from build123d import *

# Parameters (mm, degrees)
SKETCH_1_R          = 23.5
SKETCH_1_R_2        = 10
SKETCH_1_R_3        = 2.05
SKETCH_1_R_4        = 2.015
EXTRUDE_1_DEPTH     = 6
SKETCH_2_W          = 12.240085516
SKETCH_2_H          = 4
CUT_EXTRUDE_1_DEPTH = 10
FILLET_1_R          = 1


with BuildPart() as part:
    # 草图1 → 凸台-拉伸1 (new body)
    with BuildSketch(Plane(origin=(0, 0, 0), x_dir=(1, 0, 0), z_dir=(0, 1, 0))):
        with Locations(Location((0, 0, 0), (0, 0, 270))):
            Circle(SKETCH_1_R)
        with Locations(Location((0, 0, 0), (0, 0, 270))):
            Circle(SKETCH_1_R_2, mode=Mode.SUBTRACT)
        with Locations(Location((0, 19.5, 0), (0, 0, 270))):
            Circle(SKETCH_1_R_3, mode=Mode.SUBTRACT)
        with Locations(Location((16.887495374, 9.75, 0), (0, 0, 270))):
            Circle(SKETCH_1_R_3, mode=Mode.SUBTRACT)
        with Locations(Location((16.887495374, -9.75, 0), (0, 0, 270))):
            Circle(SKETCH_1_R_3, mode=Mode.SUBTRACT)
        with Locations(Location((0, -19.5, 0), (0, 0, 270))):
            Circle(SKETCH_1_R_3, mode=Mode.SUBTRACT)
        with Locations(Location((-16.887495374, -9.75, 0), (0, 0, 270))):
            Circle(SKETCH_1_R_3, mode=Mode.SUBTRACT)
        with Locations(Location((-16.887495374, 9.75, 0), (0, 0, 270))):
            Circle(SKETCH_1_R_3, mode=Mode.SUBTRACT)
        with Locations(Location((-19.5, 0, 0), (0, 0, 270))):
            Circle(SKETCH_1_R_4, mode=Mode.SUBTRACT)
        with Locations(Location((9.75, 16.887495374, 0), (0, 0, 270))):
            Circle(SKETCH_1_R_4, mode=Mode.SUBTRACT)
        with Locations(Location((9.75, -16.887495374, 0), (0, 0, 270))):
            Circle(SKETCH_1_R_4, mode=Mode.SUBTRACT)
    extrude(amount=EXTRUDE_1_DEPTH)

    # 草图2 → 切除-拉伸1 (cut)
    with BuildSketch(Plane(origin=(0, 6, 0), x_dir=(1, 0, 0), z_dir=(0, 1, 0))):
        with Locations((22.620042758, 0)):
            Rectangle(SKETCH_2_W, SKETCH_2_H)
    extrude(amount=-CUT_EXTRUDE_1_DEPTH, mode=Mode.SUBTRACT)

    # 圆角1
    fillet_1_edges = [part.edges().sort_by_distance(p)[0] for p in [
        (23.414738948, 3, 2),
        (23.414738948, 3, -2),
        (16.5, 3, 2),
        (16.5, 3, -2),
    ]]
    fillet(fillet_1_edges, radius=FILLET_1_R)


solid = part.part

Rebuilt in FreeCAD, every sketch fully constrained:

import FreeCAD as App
import Part
import Sketcher
Q = App.Units.Quantity


def edges_at(feature, points):
    """Names of the edges that pass closest to the given points."""
    edges = feature.Shape.Edges
    near = lambda p: min(range(len(edges)), key=lambda i: edges[i].distToShape(Part.Vertex(*p))[0])
    return sorted({f"Edge{near(p) + 1}" for p in points})


def add_polygon(sketch, points):
    """Adds a closed chain of lines whose ends are joined by coincident constraints."""
    first, n = sketch.GeometryCount, len(points)
    for a, b in zip(points, points[1:] + points[:1]):
        sketch.addGeometry(Part.LineSegment(App.Vector(*a, 0), App.Vector(*b, 0)), False)
    for i in range(n):
        sketch.addConstraint(Sketcher.Constraint("Coincident", first + i, 2, first + (i + 1) % n, 1))

doc = App.newDocument("Part")
body = doc.addObject("PartDesign::Body", "Body")

# Sketch on XZ plane
sketch1 = body.newObject("Sketcher::SketchObject", "Sketch")
sketch1.AttachmentSupport = (doc.getObject("XZ_Plane"), [""])
sketch1.MapMode = "FlatFace"
sketch1.addGeometry(Part.Circle(App.Vector(0, 0, 0), App.Vector(0, 0, 1), 23.5), False)
sketch1.addGeometry(Part.Circle(App.Vector(-16.9, -9.8, 0), App.Vector(0, 0, 1), 2), False)
sketch1.addGeometry(Part.Circle(App.Vector(-19.5, 0, 0), App.Vector(0, 0, 1), 2), False)
sketch1.addGeometry(Part.Circle(App.Vector(-16.9, 9.8, 0), App.Vector(0, 0, 1), 2), False)
sketch1.addGeometry(Part.Circle(App.Vector(0, -19.5, 0), App.Vector(0, 0, 1), 2), False)
sketch1.addGeometry(Part.Circle(App.Vector(9.8, -16.9, 0), App.Vector(0, 0, 1), 2), False)
sketch1.addGeometry(Part.Circle(App.Vector(16.9, -9.8, 0), App.Vector(0, 0, 1), 2), False)
sketch1.addGeometry(Part.Circle(App.Vector(0, 0, 0), App.Vector(0, 0, 1), 10), False)
sketch1.addGeometry(Part.Circle(App.Vector(0, 19.5, 0), App.Vector(0, 0, 1), 2), False)
sketch1.addGeometry(Part.Circle(App.Vector(16.9, 9.8, 0), App.Vector(0, 0, 1), 2), False)
sketch1.addGeometry(Part.Circle(App.Vector(9.8, 16.9, 0), App.Vector(0, 0, 1), 2), False)
sketch1.addConstraint(Sketcher.Constraint("Coincident", 0, 3, -1, 1))
sketch1.addConstraint(Sketcher.Constraint("Coincident", 7, 3, -1, 1))
sketch1.addConstraint(Sketcher.Constraint("Equal", 1, 3))
sketch1.addConstraint(Sketcher.Constraint("Equal", 3, 4))
sketch1.addConstraint(Sketcher.Constraint("Equal", 2, 5))
sketch1.addConstraint(Sketcher.Constraint("Equal", 4, 6))
sketch1.addConstraint(Sketcher.Constraint("Equal", 6, 8))
sketch1.addConstraint(Sketcher.Constraint("Equal", 8, 9))
sketch1.addConstraint(Sketcher.Constraint("Equal", 5, 10))
sketch1.addConstraint(Sketcher.Constraint("Symmetric", 3, 3, 6, 3, -1, 1))
sketch1.addConstraint(Sketcher.Constraint("Symmetric", 4, 3, 8, 3, -1, 1))
sketch1.addConstraint(Sketcher.Constraint("Symmetric", 1, 3, 9, 3, -1, 1))
sketch1.addConstraint(Sketcher.Constraint("Symmetric", 1, 3, 6, 3, -2))
sketch1.addConstraint(Sketcher.Constraint("Symmetric", 5, 3, 10, 3, -1))
sketch1.addConstraint(Sketcher.Constraint("PointOnObject", 2, 3, -1))
sketch1.addConstraint(Sketcher.Constraint("PointOnObject", 4, 3, -2))
sketch1.addConstraint(Sketcher.Constraint("Diameter", 0, Q("47 mm")))
sketch1.addConstraint(Sketcher.Constraint("Diameter", 7, Q("20 mm")))
sketch1.addConstraint(Sketcher.Constraint("Diameter", 1, Q("4.1 mm")))
sketch1.addConstraint(Sketcher.Constraint("Diameter", 2, Q("4.03 mm")))
sketch1.addConstraint(Sketcher.Constraint("DistanceX", 2, 3, -1, 1, Q("19.5 mm")))
sketch1.addConstraint(Sketcher.Constraint("DistanceY", 4, 3, -1, 1, Q("19.5 mm")))
sketch1.addConstraint(Sketcher.Constraint("DistanceY", 1, 3, 3, 3, Q("19.5 mm")))
sketch1.addConstraint(Sketcher.Constraint("DistanceX", -1, 1, 5, 3, Q("9.75 mm")))
sketch1.addConstraint(Sketcher.Constraint("DistanceX", 1, 3, 6, 3, Q("33.774991 mm")))
sketch1.addConstraint(Sketcher.Constraint("DistanceY", 5, 3, -1, 1, Q("16.887495 mm")))
pad1 = body.newObject("PartDesign::Pad", "Pad")
pad1.Profile = sketch1
pad1.Length = 6
pad1.Reversed = True

# Sketch on XZ plane
sketch2 = body.newObject("Sketcher::SketchObject", "Sketch001")
sketch2.AttachmentSupport = (doc.getObject("XZ_Plane"), [""])
sketch2.MapMode = "FlatFace"
sketch2.AttachmentOffset = App.Placement(App.Vector(0, 0, -6), App.Rotation())
add_polygon(sketch2, [(16.5, -2), (16.5, 2), (28.7, 2), (28.7, -2)])  # lines 0-3
sketch2.addConstraint(Sketcher.Constraint("Vertical", 0))
sketch2.addConstraint(Sketcher.Constraint("Horizontal", 1))
sketch2.addConstraint(Sketcher.Constraint("Vertical", 2))
sketch2.addConstraint(Sketcher.Constraint("Horizontal", 3))
sketch2.addConstraint(Sketcher.Constraint("DistanceY", 0, 1, 0, 2, Q("4 mm")))
sketch2.addConstraint(Sketcher.Constraint("DistanceY", -1, 1, 0, 2, Q("2 mm")))
sketch2.addConstraint(Sketcher.Constraint("DistanceX", -1, 1, 0, 2, Q("16.5 mm")))
sketch2.addConstraint(Sketcher.Constraint("DistanceX", 1, 1, 1, 2, Q("12.240086 mm")))
pocket1 = body.newObject("PartDesign::Pocket", "Pocket")
pocket1.Profile = sketch2
pocket1.Length = 10
pocket1.Reversed = True
doc.recompute()

fillet = body.newObject("PartDesign::Fillet", "Fillet")
fillet.Base = (pocket1, edges_at(pocket1, [
    (23.415, 3, 2),
    (23.415, 3, -2),
    (16.5, 3, 2),
    (16.5, 3, -2),
]))
fillet.Radius = 1

doc.recompute()
